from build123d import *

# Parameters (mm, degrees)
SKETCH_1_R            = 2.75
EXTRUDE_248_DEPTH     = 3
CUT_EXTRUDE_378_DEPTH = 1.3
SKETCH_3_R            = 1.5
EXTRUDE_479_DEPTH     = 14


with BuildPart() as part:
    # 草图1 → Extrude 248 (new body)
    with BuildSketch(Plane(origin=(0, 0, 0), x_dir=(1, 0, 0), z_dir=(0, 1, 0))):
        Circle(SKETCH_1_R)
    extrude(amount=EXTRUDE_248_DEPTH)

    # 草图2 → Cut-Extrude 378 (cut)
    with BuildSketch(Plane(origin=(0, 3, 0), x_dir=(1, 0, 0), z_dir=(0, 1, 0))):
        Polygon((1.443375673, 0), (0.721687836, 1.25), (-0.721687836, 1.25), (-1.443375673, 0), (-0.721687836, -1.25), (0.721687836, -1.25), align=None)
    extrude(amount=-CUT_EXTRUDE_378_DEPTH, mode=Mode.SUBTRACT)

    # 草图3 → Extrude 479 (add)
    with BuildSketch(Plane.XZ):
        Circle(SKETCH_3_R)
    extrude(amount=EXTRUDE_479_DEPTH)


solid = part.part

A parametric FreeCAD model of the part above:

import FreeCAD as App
import Part
import Sketcher

V = App.Vector
Q = App.Units.Quantity


def add_polygon(sketch, points):
    """Adds a closed chain of lines whose ends are joined by coincident constraints."""
    first, n = sketch.GeometryCount, len(points)
    for a, b in zip(points, points[1:] + points[:1]):
        sketch.addGeometry(Part.LineSegment(App.Vector(*a, 0), App.Vector(*b, 0)), False)
    for i in range(n):
        sketch.addConstraint(Sketcher.Constraint("Coincident", first + i, 2, first + (i + 1) % n, 1))

doc = App.newDocument("Part")
body = doc.addObject("PartDesign::Body", "Body")

sketch1 = doc.addObject("Sketcher::SketchObject", "Sketch")
body.addObject(sketch1)
sketch1.AttachmentSupport = (doc.XZ_Plane, [""])
sketch1.MapMode = "FlatFace"
sketch1.addGeometry(Part.Circle(V(0, 0, 0), V(0, 0, 1), 2.8), False)
sketch1.addConstraint([
    Sketcher.Constraint("Coincident", 0, 3, -1, 1),
    Sketcher.Constraint("Diameter", 0, Q("5.5 mm")),
])
pad1 = doc.addObject("PartDesign::Pad", "Pad")
body.addObject(pad1)
pad1.Profile = sketch1
pad1.Length = 3
pad1.Reversed = True

sketch2 = doc.addObject("Sketcher::SketchObject", "Sketch001")
body.addObject(sketch2)
sketch2.AttachmentSupport = (doc.XZ_Plane, [""])
sketch2.MapMode = "FlatFace"
sketch2.AttachmentOffset = App.Placement(V(0, 0, -3), App.Rotation())
add_polygon(sketch2, [(1.4, 0), (0.7, -1.2), (-0.7, -1.2), (-1.4, 0), (-0.7, 1.2), (0.7, 1.2)])
sketch2.addConstraint([
    Sketcher.Constraint("Horizontal", 1),
    Sketcher.Constraint("Horizontal", 4),
    Sketcher.Constraint("Symmetric", 0, 2, 3, 2, -1, 1),
    Sketcher.Constraint("Symmetric", 2, 2, 5, 2, -1, 1),
    Sketcher.Constraint("PointOnObject", 2, 2, -1),
    Sketcher.Constraint("Parallel", 2, 5),
    Sketcher.Constraint("Vertical", 1, 2, 3, 2),
    Sketcher.Constraint("Angle", 0, Q("-120 deg")),
    Sketcher.Constraint("DistanceY", 1, 2, 3, 2, Q("2.5 mm")),
    Sketcher.Constraint("DistanceX", 1, 2, 1, 1, Q("1.443376 mm")),
])
pocket1 = doc.addObject("PartDesign::Pocket", "Pocket")
body.addObject(pocket1)
pocket1.Profile = sketch2
pocket1.Length = 1.3
pocket1.Reversed = True

sketch3 = doc.addObject("Sketcher::SketchObject", "Sketch002")
body.addObject(sketch3)
sketch3.AttachmentSupport = (doc.XZ_Plane, [""])
sketch3.MapMode = "FlatFace"
sketch3.addGeometry(Part.Circle(V(0, 0, 0), V(0, 0, 1), 1.5), False)
sketch3.addConstraint([
    Sketcher.Constraint("Coincident", 0, 3, -1, 1),
    Sketcher.Constraint("Diameter", 0, Q("3 mm")),
])
pad2 = doc.addObject("PartDesign::Pad", "Pad001")
body.addObject(pad2)
pad2.Profile = sketch3
pad2.Length = 14

doc.recompute()
